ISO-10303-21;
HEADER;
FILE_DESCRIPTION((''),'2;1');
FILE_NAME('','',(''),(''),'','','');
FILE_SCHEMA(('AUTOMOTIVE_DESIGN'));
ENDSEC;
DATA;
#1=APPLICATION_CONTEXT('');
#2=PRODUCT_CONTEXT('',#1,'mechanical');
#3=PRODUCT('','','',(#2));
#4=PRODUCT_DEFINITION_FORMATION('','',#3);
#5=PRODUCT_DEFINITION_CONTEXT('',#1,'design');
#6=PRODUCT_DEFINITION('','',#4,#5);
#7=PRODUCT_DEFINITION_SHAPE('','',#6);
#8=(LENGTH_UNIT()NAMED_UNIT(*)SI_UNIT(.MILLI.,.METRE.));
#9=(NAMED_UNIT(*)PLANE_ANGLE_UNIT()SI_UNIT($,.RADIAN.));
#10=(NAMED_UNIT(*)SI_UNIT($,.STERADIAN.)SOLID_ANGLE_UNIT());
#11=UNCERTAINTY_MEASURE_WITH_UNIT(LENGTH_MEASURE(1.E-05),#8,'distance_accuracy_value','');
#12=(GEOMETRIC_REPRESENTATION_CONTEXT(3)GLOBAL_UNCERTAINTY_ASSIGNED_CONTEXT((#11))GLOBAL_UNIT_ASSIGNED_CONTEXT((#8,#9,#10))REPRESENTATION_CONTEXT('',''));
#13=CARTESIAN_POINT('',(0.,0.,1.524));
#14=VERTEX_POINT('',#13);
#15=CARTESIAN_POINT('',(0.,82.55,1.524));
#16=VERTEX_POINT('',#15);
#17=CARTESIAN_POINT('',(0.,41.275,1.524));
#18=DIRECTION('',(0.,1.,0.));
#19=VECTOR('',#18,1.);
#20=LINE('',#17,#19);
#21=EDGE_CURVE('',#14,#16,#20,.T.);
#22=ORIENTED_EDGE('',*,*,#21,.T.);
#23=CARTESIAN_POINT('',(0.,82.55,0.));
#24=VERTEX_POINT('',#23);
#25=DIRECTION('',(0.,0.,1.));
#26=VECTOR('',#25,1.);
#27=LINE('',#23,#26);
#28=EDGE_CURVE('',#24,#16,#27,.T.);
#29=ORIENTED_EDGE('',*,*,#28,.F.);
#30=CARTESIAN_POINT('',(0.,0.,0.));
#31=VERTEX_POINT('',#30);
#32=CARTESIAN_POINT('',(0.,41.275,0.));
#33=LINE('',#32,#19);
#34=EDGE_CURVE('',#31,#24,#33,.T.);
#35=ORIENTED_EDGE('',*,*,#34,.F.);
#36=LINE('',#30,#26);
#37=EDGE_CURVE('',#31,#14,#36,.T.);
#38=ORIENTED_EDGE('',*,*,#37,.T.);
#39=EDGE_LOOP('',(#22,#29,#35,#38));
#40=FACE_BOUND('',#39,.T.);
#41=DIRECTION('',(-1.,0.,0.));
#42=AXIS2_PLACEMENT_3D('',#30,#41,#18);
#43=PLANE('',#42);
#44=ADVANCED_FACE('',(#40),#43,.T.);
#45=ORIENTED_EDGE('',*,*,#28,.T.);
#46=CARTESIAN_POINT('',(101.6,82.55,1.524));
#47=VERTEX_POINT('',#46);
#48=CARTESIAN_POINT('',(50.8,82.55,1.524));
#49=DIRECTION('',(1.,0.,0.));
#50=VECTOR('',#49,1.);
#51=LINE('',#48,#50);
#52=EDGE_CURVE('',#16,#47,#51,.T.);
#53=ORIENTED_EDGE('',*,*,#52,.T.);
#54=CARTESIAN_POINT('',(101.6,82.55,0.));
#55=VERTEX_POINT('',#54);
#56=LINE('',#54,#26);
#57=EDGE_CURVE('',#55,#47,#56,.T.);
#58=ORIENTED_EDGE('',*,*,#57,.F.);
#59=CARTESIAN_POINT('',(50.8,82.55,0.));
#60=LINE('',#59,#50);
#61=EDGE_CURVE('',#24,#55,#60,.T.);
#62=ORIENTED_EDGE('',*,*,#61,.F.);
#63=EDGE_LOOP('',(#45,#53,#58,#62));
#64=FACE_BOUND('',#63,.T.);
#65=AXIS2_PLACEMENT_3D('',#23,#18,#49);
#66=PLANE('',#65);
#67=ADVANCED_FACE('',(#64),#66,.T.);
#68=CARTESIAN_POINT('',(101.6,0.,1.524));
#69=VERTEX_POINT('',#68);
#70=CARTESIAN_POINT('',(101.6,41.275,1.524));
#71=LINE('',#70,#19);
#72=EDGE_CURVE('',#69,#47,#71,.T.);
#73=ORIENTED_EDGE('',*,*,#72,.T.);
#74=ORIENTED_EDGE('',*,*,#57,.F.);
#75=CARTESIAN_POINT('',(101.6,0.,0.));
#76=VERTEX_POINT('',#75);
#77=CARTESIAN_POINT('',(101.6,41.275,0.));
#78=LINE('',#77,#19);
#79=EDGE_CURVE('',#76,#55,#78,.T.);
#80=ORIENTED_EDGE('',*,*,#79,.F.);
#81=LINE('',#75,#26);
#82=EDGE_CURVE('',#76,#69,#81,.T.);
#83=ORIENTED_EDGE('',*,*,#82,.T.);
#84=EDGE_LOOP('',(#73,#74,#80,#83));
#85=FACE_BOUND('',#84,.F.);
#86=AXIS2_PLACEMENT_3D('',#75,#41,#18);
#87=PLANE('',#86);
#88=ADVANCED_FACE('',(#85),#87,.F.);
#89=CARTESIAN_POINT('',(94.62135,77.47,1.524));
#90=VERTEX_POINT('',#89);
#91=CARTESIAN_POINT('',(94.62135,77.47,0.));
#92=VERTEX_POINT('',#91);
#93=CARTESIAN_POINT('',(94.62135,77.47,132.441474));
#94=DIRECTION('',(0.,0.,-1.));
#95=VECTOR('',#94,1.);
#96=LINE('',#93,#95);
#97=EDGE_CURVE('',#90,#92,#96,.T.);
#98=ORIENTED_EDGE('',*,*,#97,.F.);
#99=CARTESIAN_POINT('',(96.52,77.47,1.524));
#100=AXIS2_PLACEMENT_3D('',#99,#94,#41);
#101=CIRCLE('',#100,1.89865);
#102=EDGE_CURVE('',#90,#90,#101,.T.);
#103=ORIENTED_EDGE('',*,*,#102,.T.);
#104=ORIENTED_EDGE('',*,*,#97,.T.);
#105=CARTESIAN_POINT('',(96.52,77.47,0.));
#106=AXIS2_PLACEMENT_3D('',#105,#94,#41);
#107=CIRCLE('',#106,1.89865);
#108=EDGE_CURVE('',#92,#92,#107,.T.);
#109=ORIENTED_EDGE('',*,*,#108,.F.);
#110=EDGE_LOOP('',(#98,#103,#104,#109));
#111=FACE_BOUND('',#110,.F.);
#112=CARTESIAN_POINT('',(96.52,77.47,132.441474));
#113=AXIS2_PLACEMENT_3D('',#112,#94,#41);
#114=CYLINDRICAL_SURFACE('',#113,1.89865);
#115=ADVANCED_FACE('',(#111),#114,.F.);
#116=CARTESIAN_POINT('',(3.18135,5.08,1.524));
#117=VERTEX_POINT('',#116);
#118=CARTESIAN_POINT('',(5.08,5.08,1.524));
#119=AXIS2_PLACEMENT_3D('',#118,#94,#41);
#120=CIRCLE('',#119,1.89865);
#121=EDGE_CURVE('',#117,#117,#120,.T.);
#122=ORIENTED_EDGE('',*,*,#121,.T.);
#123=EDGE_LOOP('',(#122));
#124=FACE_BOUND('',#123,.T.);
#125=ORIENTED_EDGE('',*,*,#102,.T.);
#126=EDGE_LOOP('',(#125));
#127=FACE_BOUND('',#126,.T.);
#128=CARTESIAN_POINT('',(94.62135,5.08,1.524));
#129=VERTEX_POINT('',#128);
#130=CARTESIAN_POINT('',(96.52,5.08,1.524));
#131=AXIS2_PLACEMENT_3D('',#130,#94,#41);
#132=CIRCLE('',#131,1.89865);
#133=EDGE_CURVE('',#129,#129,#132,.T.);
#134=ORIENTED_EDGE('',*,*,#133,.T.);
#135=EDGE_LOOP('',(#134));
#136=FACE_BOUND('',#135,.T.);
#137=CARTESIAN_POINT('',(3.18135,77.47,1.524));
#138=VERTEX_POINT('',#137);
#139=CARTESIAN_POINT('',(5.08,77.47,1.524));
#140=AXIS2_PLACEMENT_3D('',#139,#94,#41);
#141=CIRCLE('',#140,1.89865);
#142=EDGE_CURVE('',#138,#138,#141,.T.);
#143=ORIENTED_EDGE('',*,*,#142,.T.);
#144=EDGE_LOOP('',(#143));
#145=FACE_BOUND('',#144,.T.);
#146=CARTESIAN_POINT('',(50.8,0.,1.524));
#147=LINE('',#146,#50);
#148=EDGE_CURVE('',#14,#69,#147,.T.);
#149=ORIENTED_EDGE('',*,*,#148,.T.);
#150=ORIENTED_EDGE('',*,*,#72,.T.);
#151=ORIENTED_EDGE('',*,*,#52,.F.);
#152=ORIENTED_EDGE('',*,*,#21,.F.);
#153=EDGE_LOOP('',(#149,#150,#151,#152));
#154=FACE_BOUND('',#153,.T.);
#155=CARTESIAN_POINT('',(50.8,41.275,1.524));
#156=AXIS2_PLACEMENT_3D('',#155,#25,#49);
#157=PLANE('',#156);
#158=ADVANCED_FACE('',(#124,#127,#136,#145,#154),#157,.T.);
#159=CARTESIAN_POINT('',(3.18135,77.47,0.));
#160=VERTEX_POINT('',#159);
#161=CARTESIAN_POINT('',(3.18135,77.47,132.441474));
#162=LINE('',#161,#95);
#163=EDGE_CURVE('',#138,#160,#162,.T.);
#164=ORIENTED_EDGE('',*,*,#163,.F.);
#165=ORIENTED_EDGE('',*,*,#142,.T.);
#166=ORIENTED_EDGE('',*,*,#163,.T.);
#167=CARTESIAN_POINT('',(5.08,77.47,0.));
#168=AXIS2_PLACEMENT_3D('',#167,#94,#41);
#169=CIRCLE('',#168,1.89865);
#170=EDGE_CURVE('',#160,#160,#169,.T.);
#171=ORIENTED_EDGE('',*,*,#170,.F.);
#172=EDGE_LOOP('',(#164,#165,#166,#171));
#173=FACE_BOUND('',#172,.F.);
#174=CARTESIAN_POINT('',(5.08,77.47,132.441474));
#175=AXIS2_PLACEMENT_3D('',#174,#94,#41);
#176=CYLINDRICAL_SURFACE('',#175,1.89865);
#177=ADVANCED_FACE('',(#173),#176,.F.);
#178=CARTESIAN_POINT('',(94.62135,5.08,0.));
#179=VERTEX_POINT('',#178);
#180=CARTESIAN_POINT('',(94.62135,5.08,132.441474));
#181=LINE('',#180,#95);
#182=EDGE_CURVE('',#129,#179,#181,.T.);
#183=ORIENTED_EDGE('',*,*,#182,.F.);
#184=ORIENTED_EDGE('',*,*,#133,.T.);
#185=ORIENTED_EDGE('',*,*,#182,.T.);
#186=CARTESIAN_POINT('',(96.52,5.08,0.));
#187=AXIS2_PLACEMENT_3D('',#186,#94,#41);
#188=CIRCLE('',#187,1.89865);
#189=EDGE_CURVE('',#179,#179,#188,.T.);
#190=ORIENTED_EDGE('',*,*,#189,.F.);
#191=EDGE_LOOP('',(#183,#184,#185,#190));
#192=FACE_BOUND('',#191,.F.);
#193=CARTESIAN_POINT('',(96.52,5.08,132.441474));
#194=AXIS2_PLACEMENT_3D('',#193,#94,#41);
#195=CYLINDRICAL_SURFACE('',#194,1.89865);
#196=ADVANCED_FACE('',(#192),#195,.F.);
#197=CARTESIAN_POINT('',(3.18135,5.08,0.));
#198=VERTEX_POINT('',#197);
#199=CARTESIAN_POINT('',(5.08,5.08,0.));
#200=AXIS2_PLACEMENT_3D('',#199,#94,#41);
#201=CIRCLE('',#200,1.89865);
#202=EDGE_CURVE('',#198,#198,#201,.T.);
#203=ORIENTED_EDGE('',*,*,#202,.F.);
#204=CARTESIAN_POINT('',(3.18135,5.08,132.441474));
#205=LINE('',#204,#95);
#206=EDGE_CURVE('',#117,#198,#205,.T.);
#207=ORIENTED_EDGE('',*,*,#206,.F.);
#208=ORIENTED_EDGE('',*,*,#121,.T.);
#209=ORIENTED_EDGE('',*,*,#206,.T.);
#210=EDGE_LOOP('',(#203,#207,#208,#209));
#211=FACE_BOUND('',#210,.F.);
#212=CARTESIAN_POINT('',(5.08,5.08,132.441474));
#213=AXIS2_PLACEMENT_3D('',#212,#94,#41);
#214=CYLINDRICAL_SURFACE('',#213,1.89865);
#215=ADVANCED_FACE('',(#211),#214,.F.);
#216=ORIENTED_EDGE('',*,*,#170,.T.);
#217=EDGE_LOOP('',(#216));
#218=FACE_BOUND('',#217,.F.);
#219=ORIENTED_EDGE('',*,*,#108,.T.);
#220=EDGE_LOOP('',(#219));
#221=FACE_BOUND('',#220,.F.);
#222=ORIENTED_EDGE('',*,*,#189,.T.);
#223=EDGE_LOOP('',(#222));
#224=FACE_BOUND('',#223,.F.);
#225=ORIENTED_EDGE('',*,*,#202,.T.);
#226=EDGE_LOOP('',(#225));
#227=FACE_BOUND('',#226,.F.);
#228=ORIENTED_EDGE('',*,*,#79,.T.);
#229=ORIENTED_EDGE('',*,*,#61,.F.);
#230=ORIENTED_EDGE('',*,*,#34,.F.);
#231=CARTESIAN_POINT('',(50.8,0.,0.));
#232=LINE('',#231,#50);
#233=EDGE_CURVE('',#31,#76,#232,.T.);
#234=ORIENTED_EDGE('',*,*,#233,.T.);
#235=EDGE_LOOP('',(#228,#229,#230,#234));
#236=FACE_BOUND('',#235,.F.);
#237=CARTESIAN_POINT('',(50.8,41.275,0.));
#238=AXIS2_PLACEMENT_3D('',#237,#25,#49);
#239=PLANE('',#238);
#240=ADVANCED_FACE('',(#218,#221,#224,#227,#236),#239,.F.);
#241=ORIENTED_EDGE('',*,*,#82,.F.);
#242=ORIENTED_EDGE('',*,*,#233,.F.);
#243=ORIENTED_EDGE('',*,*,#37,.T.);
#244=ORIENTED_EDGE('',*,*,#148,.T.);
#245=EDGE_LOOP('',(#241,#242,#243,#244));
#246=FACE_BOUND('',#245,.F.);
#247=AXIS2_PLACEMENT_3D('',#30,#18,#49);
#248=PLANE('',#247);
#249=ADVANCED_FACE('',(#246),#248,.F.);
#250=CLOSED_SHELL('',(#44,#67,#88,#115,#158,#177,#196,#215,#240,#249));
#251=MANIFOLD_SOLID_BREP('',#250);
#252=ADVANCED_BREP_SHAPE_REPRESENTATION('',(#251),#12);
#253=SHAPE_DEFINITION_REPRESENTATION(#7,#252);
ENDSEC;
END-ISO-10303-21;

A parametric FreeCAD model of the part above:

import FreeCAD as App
import Part
import Sketcher

V = App.Vector
Q = App.Units.Quantity


def add_polygon(sketch, points):
    """Adds a closed chain of lines whose ends are joined by coincident constraints."""
    first, n = sketch.GeometryCount, len(points)
    for a, b in zip(points, points[1:] + points[:1]):
        sketch.addGeometry(Part.LineSegment(App.Vector(*a, 0), App.Vector(*b, 0)), False)
    for i in range(n):
        sketch.addConstraint(Sketcher.Constraint("Coincident", first + i, 2, first + (i + 1) % n, 1))

doc = App.newDocument("Part")
params = doc.addObject("Spreadsheet::Sheet", "Params")
for row, (alias, value) in enumerate([
    ("sketch1_width", "4 in"),
    ("sketch1_height", "3.25 in"),
    ("pad1_length", "0.06 in"),
    ("hole_diameter", "0.1495 in"),
], start=1):
    params.set(f"A{row}", alias)
    params.set(f"B{row}", "=" + value)
    params.setAlias(f"B{row}", alias)

body = doc.addObject("PartDesign::Body", "Body")

# Sketch on XY plane
sketch1 = body.newObject("Sketcher::SketchObject", "Sketch")
sketch1.AttachmentSupport = (doc.getObject("XY_Plane"), [""])
sketch1.MapMode = "FlatFace"
add_polygon(sketch1, [(0, 82.55), (0, 0), (101.6, 0), (101.6, 82.55)])  # lines 0-3
sketch1.addConstraint(Sketcher.Constraint("Vertical", 0))
sketch1.addConstraint(Sketcher.Constraint("Horizontal", 1))
sketch1.addConstraint(Sketcher.Constraint("Vertical", 2))
sketch1.addConstraint(Sketcher.Constraint("Horizontal", 3))
sketch1.addConstraint(Sketcher.Constraint("Coincident", 0, 2, -1, 1))
sketch1.addConstraint(Sketcher.Constraint("DistanceX", 1, 1, 1, 2, Q("4 in")))
sketch1.addConstraint(Sketcher.Constraint("DistanceY", 0, 2, 0, 1, Q("3.25 in")))
sketch1.setExpression("Constraints[9]", "Params.sketch1_width")
sketch1.setExpression("Constraints[10]", "Params.sketch1_height")
pad1 = body.newObject("PartDesign::Pad", "Pad")
pad1.Profile = sketch1
pad1.setExpression("Length", "Params.pad1_length")

# Sketch on XY plane
sketch2 = body.newObject("Sketcher::SketchObject", "Sketch001")
sketch2.AttachmentSupport = (doc.getObject("XY_Plane"), [""])
sketch2.MapMode = "FlatFace"
sketch2.AttachmentOffset = App.Placement(V(0, 0, 0.06 * 25.4), App.Rotation())
sketch2.addGeometry(Part.Circle(V(5.08, 77.47, 0), V(0, 0, 1), 1.89865), False)
sketch2.addGeometry(Part.Circle(V(96.52, 77.47, 0), V(0, 0, 1), 1.89865), False)
sketch2.addGeometry(Part.Circle(V(5.08, 5.08, 0), V(0, 0, 1), 1.89865), False)
sketch2.addGeometry(Part.Circle(V(96.52, 5.08, 0), V(0, 0, 1), 1.89865), False)
sketch2.addConstraint(Sketcher.Constraint("Equal", 0, 1))
sketch2.addConstraint(Sketcher.Constraint("Equal", 1, 2))
sketch2.addConstraint(Sketcher.Constraint("Equal", 2, 3))
sketch2.addConstraint(Sketcher.Constraint("Horizontal", 0, 3, 1, 3))
sketch2.addConstraint(Sketcher.Constraint("Horizontal", 2, 3, 3, 3))
sketch2.addConstraint(Sketcher.Constraint("Vertical", 0, 3, 2, 3))
sketch2.addConstraint(Sketcher.Constraint("Vertical", 1, 3, 3, 3))
sketch2.addConstraint(Sketcher.Constraint("Diameter", 0, Q("0.1495 in")))
sketch2.addConstraint(Sketcher.Constraint("DistanceX", -1, 1, 0, 3, Q("0.2 in")))
sketch2.addConstraint(Sketcher.Constraint("DistanceX", -1, 1, 1, 3, Q("3.8 in")))
sketch2.addConstraint(Sketcher.Constraint("DistanceY", -1, 1, 2, 3, Q("0.2 in")))
sketch2.addConstraint(Sketcher.Constraint("DistanceY", -1, 1, 0, 3, Q("3.05 in")))
doc.recompute()
hole = body.newObject("PartDesign::Hole", "Hole")
hole.Profile = sketch2
hole.ThreadType = "None"
hole.setExpression("Diameter", "Params.hole_diameter")
hole.DepthType = "ThroughAll"

doc.recompute()
